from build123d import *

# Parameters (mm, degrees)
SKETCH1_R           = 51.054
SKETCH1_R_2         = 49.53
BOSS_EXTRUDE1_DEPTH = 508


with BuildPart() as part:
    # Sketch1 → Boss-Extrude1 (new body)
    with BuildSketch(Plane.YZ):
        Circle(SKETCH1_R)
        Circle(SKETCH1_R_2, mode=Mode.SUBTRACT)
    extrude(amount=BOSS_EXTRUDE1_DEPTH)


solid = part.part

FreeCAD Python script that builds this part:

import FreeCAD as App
import Part
import Sketcher
from FreeCAD import Vector
Q = App.Units.Quantity

doc = App.newDocument("Part")
body = doc.addObject("PartDesign::Body", "Body")

sketch1 = body.newObject("Sketcher::SketchObject", "Sketch")
sketch1.AttachmentSupport = (doc.getObject("YZ_Plane"), [""])
sketch1.MapMode = "FlatFace"
sketch1.addGeometry([
    Part.Circle(Vector(0, 0, 0), Vector(0, 0, 1), 51),
    Part.Circle(Vector(0, 0, 0), Vector(0, 0, 1), 50),
], False)
sketch1.addConstraint([
    Sketcher.Constraint("Coincident", 0, 3, -1, 1),
    Sketcher.Constraint("Coincident", 1, 3, -1, 1),
    Sketcher.Constraint("Diameter", 1, Q("3.9 in")),
    Sketcher.Constraint("Diameter", 0, Q("4.02 in")),
])
pad1 = body.newObject("PartDesign::Pad", "Pad")
pad1.Profile = sketch1
pad1.Length = Q("20 in")

doc.recompute()
